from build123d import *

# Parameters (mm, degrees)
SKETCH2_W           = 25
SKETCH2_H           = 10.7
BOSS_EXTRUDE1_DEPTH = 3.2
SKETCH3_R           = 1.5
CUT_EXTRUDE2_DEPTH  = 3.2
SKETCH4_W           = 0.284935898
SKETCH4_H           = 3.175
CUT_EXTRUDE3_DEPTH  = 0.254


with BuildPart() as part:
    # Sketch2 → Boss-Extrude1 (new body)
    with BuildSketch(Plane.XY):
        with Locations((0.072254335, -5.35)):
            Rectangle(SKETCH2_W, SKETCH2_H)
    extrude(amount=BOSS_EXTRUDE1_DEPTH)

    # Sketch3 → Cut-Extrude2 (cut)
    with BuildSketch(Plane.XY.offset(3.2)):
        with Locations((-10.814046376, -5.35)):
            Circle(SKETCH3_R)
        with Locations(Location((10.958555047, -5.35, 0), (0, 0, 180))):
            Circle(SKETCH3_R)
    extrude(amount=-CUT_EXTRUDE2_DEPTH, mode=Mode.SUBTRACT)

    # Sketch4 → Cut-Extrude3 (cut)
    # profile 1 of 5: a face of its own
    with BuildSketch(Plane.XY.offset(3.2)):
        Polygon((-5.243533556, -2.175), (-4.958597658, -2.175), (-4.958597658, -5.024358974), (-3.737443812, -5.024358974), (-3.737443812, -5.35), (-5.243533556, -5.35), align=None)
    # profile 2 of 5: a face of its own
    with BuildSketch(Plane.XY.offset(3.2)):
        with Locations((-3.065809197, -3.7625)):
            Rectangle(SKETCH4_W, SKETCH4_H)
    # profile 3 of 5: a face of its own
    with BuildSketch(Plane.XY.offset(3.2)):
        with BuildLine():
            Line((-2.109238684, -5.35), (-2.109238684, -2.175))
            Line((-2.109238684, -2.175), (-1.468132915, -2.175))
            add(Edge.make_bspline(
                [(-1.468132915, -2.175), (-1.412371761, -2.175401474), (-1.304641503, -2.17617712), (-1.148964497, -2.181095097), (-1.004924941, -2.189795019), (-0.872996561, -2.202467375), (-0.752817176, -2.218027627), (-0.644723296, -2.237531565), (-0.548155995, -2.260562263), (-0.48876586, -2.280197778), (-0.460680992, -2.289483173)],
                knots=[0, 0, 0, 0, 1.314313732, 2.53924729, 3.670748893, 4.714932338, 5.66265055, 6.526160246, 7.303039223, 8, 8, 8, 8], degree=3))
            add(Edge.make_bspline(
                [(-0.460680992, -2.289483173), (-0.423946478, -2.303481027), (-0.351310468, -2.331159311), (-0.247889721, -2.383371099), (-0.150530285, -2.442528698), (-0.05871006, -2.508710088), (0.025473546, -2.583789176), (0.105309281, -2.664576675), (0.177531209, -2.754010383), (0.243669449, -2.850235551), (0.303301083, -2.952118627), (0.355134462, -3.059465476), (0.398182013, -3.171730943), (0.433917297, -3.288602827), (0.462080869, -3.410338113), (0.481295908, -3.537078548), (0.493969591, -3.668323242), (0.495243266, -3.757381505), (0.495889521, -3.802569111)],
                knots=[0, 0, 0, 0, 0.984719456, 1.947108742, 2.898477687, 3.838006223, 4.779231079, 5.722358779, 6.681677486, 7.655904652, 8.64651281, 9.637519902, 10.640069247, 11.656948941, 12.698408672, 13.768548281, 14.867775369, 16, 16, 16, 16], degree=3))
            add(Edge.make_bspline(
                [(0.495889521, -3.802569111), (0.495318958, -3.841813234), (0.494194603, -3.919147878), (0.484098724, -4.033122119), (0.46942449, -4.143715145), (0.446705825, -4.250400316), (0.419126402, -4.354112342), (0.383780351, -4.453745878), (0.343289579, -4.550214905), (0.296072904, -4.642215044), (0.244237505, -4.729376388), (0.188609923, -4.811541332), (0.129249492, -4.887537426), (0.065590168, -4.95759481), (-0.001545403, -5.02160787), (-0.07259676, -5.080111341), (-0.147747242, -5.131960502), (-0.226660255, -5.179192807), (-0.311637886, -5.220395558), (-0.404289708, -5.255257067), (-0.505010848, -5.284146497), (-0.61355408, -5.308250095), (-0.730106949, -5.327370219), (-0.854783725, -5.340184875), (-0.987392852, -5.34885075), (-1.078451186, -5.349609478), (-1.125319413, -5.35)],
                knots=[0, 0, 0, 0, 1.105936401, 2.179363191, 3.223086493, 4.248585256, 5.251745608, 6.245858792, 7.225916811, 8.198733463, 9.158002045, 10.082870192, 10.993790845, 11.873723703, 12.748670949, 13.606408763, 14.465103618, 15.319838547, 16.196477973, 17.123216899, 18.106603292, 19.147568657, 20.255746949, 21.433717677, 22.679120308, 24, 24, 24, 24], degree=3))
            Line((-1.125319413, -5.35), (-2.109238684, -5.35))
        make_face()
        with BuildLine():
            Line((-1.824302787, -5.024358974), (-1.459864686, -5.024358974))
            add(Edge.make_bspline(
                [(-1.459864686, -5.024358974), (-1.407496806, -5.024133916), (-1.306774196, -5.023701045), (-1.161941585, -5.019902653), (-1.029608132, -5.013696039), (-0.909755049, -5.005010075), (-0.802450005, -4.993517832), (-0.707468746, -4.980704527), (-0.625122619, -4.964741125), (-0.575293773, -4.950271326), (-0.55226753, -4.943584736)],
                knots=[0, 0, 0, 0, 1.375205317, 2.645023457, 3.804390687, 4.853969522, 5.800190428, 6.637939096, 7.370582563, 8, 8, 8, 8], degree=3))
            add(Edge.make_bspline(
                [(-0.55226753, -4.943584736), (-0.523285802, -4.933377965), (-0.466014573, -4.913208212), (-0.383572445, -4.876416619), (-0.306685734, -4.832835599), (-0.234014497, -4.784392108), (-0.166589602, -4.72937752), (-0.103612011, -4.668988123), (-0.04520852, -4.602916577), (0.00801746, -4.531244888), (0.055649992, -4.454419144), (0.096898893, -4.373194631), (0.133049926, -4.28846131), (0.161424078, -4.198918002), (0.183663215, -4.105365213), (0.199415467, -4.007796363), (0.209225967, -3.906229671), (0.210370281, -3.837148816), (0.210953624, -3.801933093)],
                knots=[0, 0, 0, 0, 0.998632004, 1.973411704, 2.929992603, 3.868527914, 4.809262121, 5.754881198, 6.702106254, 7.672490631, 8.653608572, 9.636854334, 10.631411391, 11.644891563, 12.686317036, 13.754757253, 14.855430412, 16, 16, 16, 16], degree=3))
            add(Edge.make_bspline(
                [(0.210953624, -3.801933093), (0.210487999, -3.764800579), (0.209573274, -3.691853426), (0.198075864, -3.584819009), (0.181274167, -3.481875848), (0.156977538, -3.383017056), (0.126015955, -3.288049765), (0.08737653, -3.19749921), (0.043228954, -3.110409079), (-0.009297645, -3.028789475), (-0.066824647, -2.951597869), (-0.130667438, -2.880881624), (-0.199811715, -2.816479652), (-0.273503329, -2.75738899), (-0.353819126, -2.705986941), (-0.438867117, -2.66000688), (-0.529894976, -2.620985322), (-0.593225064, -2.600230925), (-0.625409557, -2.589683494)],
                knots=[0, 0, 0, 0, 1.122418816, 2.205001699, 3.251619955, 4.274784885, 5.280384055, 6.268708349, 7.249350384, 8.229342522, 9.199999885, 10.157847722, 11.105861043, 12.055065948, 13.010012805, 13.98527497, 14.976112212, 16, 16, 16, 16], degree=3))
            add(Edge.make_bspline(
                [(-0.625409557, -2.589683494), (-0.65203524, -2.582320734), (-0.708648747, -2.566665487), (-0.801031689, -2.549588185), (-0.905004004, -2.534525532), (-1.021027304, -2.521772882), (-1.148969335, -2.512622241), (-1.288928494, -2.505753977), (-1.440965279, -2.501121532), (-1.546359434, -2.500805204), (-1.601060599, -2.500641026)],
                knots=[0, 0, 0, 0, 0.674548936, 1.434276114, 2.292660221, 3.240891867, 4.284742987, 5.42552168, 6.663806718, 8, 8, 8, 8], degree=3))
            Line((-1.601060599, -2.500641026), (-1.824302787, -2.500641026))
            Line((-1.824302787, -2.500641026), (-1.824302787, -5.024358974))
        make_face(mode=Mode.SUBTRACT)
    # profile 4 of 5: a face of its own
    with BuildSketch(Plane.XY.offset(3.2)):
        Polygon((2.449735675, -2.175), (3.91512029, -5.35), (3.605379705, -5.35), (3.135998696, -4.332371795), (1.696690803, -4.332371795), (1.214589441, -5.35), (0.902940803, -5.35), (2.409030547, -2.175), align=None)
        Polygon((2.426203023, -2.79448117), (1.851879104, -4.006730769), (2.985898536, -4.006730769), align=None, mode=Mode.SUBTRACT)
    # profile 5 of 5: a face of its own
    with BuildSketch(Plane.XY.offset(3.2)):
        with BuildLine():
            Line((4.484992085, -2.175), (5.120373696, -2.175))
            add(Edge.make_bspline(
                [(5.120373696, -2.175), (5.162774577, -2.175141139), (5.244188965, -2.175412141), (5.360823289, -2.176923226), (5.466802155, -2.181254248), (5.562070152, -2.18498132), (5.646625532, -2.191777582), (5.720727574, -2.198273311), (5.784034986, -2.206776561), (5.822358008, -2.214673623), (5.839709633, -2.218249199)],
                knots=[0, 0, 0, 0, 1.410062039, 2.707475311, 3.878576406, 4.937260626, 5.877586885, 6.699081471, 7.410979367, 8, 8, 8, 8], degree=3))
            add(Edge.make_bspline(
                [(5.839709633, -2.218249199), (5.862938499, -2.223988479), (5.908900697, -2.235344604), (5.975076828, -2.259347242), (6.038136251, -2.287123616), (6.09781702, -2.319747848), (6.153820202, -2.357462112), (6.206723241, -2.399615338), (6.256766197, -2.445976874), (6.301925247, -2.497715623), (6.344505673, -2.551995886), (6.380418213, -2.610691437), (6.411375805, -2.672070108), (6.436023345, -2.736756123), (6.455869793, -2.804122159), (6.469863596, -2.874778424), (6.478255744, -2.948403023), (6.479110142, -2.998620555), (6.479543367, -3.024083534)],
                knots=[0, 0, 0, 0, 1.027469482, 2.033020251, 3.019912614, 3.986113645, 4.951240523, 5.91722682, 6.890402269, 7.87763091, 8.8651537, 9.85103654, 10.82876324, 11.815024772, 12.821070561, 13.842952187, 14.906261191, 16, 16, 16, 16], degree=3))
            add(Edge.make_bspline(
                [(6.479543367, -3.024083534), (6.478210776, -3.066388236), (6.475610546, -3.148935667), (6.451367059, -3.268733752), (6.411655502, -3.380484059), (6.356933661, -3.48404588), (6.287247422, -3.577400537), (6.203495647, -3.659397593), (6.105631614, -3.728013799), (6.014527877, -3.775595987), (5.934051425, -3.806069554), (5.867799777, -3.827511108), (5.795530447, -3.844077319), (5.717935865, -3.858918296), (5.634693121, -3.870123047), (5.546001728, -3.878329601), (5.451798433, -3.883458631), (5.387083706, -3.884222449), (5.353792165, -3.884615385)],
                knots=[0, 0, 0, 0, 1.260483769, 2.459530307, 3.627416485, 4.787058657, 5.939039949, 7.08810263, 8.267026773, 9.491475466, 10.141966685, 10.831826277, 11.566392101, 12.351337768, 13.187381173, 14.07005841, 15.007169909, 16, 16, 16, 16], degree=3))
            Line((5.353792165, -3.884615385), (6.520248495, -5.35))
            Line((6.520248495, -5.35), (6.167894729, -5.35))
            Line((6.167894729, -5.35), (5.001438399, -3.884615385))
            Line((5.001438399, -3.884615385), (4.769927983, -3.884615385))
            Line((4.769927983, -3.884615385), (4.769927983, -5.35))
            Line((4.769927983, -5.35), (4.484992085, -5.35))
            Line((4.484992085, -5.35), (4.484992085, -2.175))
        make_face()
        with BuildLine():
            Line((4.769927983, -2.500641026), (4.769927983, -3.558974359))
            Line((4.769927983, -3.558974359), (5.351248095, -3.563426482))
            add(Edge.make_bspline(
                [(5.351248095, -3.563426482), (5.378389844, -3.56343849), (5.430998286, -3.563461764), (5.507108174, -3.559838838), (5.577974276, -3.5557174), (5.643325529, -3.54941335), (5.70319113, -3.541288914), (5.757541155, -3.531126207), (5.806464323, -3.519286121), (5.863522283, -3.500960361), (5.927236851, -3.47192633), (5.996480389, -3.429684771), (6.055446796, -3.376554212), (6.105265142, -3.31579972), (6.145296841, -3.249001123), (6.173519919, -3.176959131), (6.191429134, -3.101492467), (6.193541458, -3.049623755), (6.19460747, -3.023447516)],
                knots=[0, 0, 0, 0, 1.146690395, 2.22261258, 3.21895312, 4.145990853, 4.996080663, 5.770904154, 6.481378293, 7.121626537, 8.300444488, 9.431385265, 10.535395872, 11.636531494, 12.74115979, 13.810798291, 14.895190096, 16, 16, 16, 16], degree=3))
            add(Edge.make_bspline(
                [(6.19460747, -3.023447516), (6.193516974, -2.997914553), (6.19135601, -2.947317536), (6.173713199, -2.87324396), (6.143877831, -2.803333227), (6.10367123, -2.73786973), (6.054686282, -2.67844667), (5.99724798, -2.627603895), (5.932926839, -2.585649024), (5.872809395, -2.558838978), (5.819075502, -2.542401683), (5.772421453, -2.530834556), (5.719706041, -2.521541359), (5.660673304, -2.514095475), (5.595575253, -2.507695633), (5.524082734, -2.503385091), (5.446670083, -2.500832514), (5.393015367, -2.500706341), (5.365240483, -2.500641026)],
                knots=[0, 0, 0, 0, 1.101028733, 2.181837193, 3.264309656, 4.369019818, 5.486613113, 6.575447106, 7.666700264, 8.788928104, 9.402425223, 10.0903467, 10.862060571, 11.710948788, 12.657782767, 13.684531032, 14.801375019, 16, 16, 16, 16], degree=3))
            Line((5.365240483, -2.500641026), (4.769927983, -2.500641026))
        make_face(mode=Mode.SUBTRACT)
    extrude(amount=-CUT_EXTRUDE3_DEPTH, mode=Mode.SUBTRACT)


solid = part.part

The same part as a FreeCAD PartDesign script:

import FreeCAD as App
import Part
import Sketcher

V = App.Vector
Q = App.Units.Quantity

doc = App.newDocument("Part")
params = doc.addObject("Spreadsheet::Sheet", "Params")
for row, (alias, value) in enumerate([
    ("sketch1_width", "25 mm"),
    ("sketch1_height", "10.7 mm"),
    ("pad1_length", "3.2 mm"),
    ("sketch2_diameter", "3 mm"),
    ("pocket1_length", "3.2 mm"),
    ("pocket2_length", "0.254 mm"),
], start=1):
    params.set(f"A{row}", alias)
    params.set(f"B{row}", "=" + value)
    params.setAlias(f"B{row}", alias)

body = doc.addObject("PartDesign::Body", "Body")

sketch1 = doc.addObject("Sketcher::SketchObject", "Sketch")
body.addObject(sketch1)
sketch1.AttachmentSupport = (doc.XY_Plane, [""])
sketch1.MapMode = "FlatFace"
sketch1.addGeometry(Part.LineSegment(V(-12.427746, 0, 0), V(-12.427746, -10.7, 0)), False)
sketch1.addGeometry(Part.LineSegment(V(-12.427746, -10.7, 0), V(12.572254, -10.7, 0)), False)
sketch1.addGeometry(Part.LineSegment(V(12.572254, -10.7, 0), V(12.572254, 0, 0)), False)
sketch1.addGeometry(Part.LineSegment(V(12.572254, 0, 0), V(-12.427746, 0, 0)), False)
sketch1.addConstraint(Sketcher.Constraint("Coincident", 0, 2, 1, 1))
sketch1.addConstraint(Sketcher.Constraint("Coincident", 1, 2, 2, 1))
sketch1.addConstraint(Sketcher.Constraint("Coincident", 2, 2, 3, 1))
sketch1.addConstraint(Sketcher.Constraint("Coincident", 3, 2, 0, 1))
sketch1.addConstraint(Sketcher.Constraint("Vertical", 0))
sketch1.addConstraint(Sketcher.Constraint("Horizontal", 1))
sketch1.addConstraint(Sketcher.Constraint("Vertical", 2))
sketch1.addConstraint(Sketcher.Constraint("Horizontal", 3))
sketch1.addConstraint(Sketcher.Constraint("PointOnObject", 2, 2, -1))
sketch1.addConstraint(Sketcher.Constraint("DistanceX", 1, 1, 1, 2, Q("25 mm")))
sketch1.addConstraint(Sketcher.Constraint("DistanceY", 0, 2, 0, 1, Q("10.7 mm")))
sketch1.addConstraint(Sketcher.Constraint("DistanceX", 0, 2, -1, 1, Q("12.427746 mm")))
sketch1.setExpression("Constraints[9]", "Params.sketch1_width")
sketch1.setExpression("Constraints[10]", "Params.sketch1_height")
pad1 = doc.addObject("PartDesign::Pad", "Pad")
body.addObject(pad1)
pad1.Profile = sketch1
pad1.setExpression("Length", "Params.pad1_length")

sketch2 = doc.addObject("Sketcher::SketchObject", "Sketch001")
body.addObject(sketch2)
sketch2.AttachmentSupport = (doc.XY_Plane, [""])
sketch2.MapMode = "FlatFace"
sketch2.AttachmentOffset = App.Placement(V(0, 0, 3.2), App.Rotation())
sketch2.addGeometry(Part.Circle(V(-10.814046, -5.35, 0), V(0, 0, 1), 1.5), False)
sketch2.addGeometry(Part.Circle(V(10.958555, -5.35, 0), V(0, 0, 1), 1.5), False)
sketch2.addConstraint(Sketcher.Constraint("Equal", 0, 1))
sketch2.addConstraint(Sketcher.Constraint("Horizontal", 0, 3, 1, 3))
sketch2.addConstraint(Sketcher.Constraint("Diameter", 0, Q("3 mm")))
sketch2.addConstraint(Sketcher.Constraint("DistanceY", 0, 3, -1, 1, Q("5.35 mm")))
sketch2.addConstraint(Sketcher.Constraint("DistanceX", 0, 3, 1, 3, Q("21.772601 mm")))
sketch2.addConstraint(Sketcher.Constraint("DistanceX", 0, 3, -1, 1, Q("10.814046 mm")))
sketch2.setExpression("Constraints[2]", "Params.sketch2_diameter")
pocket1 = doc.addObject("PartDesign::Pocket", "Pocket")
body.addObject(pocket1)
pocket1.Profile = sketch2
pocket1.setExpression("Length", "Params.pocket1_length")

sketch3 = doc.addObject("Sketcher::SketchObject", "Sketch002")
body.addObject(sketch3)
sketch3.AttachmentSupport = (doc.XY_Plane, [""])
sketch3.MapMode = "FlatFace"
sketch3.AttachmentOffset = App.Placement(V(0, 0, 3.2), App.Rotation())
sketch3.addGeometry(Part.LineSegment(V(-4.958598, -2.175, 0), V(-5.243534, -2.175, 0)), False)
sketch3.addGeometry(Part.LineSegment(V(-5.243534, -2.175, 0), V(-5.243534, -5.35, 0)), False)
sketch3.addGeometry(Part.LineSegment(V(-5.243534, -5.35, 0), V(-3.737444, -5.35, 0)), False)
sketch3.addGeometry(Part.LineSegment(V(-3.737444, -5.35, 0), V(-3.737444, -5.024359, 0)), False)
sketch3.addGeometry(Part.LineSegment(V(-3.737444, -5.024359, 0), V(-4.958598, -5.024359, 0)), False)
sketch3.addGeometry(Part.LineSegment(V(-4.958598, -5.024359, 0), V(-4.958598, -2.175, 0)), False)
sketch3.addGeometry(Part.LineSegment(V(-3.208277, -2.175, 0), V(-3.208277, -5.35, 0)), False)
sketch3.addGeometry(Part.LineSegment(V(-3.208277, -5.35, 0), V(-2.923341, -5.35, 0)), False)
sketch3.addGeometry(Part.LineSegment(V(-2.923341, -5.35, 0), V(-2.923341, -2.175, 0)), False)
sketch3.addGeometry(Part.LineSegment(V(-2.923341, -2.175, 0), V(-3.208277, -2.175, 0)), False)
sketch3.addGeometry(Part.LineSegment(V(-2.109239, -2.175, 0), V(-2.109239, -5.35, 0)), False)
sketch3.addGeometry(Part.LineSegment(V(-2.109239, -5.35, 0), V(-1.125319, -5.35, 0)), False)
sketch3.addGeometry(Part.BSplineCurve([V(0.49589, -3.802569, 0), V(0.495319, -3.841813, 0), V(0.494195, -3.919148, 0), V(0.484099, -4.033122, 0), V(0.469424, -4.143715, 0), V(0.446706, -4.2504, 0), V(0.419126, -4.354112, 0), V(0.38378, -4.453746, 0), V(0.34329, -4.550215, 0), V(0.296073, -4.642215, 0), V(0.244238, -4.729376, 0), V(0.18861, -4.811541, 0), V(0.129249, -4.887537, 0), V(0.06559, -4.957595, 0), V(-0.001545, -5.021608, 0), V(-0.072597, -5.080111, 0), V(-0.147747, -5.131961, 0), V(-0.22666, -5.179193, 0), V(-0.311638, -5.220396, 0), V(-0.40429, -5.255257, 0), V(-0.505011, -5.284146, 0), V(-0.613554, -5.30825, 0), V(-0.730107, -5.32737, 0), V(-0.854784, -5.340185, 0), V(-0.987393, -5.348851, 0), V(-1.078451, -5.349609, 0), V(-1.125319, -5.35, 0)], [4, 1, 1, 1, 1, 1, 1, 1, 1, 1, 1, 1, 1, 1, 1, 1, 1, 1, 1, 1, 1, 1, 1, 1, 4], [0, 1.105936401, 2.179363191, 3.223086493, 4.248585256, 5.251745608, 6.245858792, 7.225916811, 8.198733463, 9.158002045, 10.082870192, 10.993790845, 11.873723703, 12.748670949, 13.606408763, 14.465103618, 15.319838547, 16.196477973, 17.123216899, 18.106603292, 19.147568657, 20.255746949, 21.433717677, 22.679120308, 24], False, 3, [1, 1, 1, 1, 1, 1, 1, 1, 1, 1, 1, 1, 1, 1, 1, 1, 1, 1, 1, 1, 1, 1, 1, 1, 1, 1, 1], False), False)
sketch3.addGeometry(Part.BSplineCurve([V(-0.460681, -2.289483, 0), V(-0.423946, -2.303481, 0), V(-0.35131, -2.331159, 0), V(-0.24789, -2.383371, 0), V(-0.15053, -2.442529, 0), V(-0.05871, -2.50871, 0), V(0.025474, -2.583789, 0), V(0.105309, -2.664577, 0), V(0.177531, -2.75401, 0), V(0.243669, -2.850236, 0), V(0.303301, -2.952119, 0), V(0.355134, -3.059465, 0), V(0.398182, -3.171731, 0), V(0.433917, -3.288603, 0), V(0.462081, -3.410338, 0), V(0.481296, -3.537079, 0), V(0.49397, -3.668323, 0), V(0.495243, -3.757382, 0), V(0.49589, -3.802569, 0)], [4, 1, 1, 1, 1, 1, 1, 1, 1, 1, 1, 1, 1, 1, 1, 1, 4], [0, 0.984719456, 1.947108742, 2.898477687, 3.838006223, 4.779231079, 5.722358779, 6.681677486, 7.655904652, 8.64651281, 9.637519902, 10.640069247, 11.656948941, 12.698408672, 13.768548281, 14.867775369, 16], False, 3, [1, 1, 1, 1, 1, 1, 1, 1, 1, 1, 1, 1, 1, 1, 1, 1, 1, 1, 1], False), False)
sketch3.addGeometry(Part.BSplineCurve([V(-1.468133, -2.175, 0), V(-1.412372, -2.175401, 0), V(-1.304642, -2.176177, 0), V(-1.148964, -2.181095, 0), V(-1.004925, -2.189795, 0), V(-0.872997, -2.202467, 0), V(-0.752817, -2.218028, 0), V(-0.644723, -2.237532, 0), V(-0.548156, -2.260562, 0), V(-0.488766, -2.280198, 0), V(-0.460681, -2.289483, 0)], [4, 1, 1, 1, 1, 1, 1, 1, 4], [0, 1.314313732, 2.53924729, 3.670748893, 4.714932338, 5.66265055, 6.526160246, 7.303039223, 8], False, 3, [1, 1, 1, 1, 1, 1, 1, 1, 1, 1, 1], False), False)
sketch3.addGeometry(Part.LineSegment(V(-1.468133, -2.175, 0), V(-2.109239, -2.175, 0)), False)
sketch3.addGeometry(Part.LineSegment(V(-1.824303, -5.024359, 0), V(-1.824303, -2.500641, 0)), False)
sketch3.addGeometry(Part.LineSegment(V(-1.824303, -2.500641, 0), V(-1.601061, -2.500641, 0)), False)
sketch3.addGeometry(Part.BSplineCurve([V(-0.62541, -2.589683, 0), V(-0.652035, -2.582321, 0), V(-0.708649, -2.566665, 0), V(-0.801032, -2.549588, 0), V(-0.905004, -2.534526, 0), V(-1.021027, -2.521773, 0), V(-1.148969, -2.512622, 0), V(-1.288928, -2.505754, 0), V(-1.440965, -2.501122, 0), V(-1.546359, -2.500805, 0), V(-1.601061, -2.500641, 0)], [4, 1, 1, 1, 1, 1, 1, 1, 4], [0, 0.674548936, 1.434276114, 2.292660221, 3.240891867, 4.284742987, 5.42552168, 6.663806718, 8], False, 3, [1, 1, 1, 1, 1, 1, 1, 1, 1, 1, 1], False), False)
sketch3.addGeometry(Part.BSplineCurve([V(0.210954, -3.801933, 0), V(0.210488, -3.764801, 0), V(0.209573, -3.691853, 0), V(0.198076, -3.584819, 0), V(0.181274, -3.481876, 0), V(0.156978, -3.383017, 0), V(0.126016, -3.28805, 0), V(0.087377, -3.197499, 0), V(0.043229, -3.110409, 0), V(-0.009298, -3.028789, 0), V(-0.066825, -2.951598, 0), V(-0.130667, -2.880882, 0), V(-0.199812, -2.81648, 0), V(-0.273503, -2.757389, 0), V(-0.353819, -2.705987, 0), V(-0.438867, -2.660007, 0), V(-0.529895, -2.620985, 0), V(-0.593225, -2.600231, 0), V(-0.62541, -2.589683, 0)], [4, 1, 1, 1, 1, 1, 1, 1, 1, 1, 1, 1, 1, 1, 1, 1, 4], [0, 1.122418816, 2.205001699, 3.251619955, 4.274784885, 5.280384055, 6.268708349, 7.249350384, 8.229342522, 9.199999885, 10.157847722, 11.105861043, 12.055065948, 13.010012805, 13.98527497, 14.976112212, 16], False, 3, [1, 1, 1, 1, 1, 1, 1, 1, 1, 1, 1, 1, 1, 1, 1, 1, 1, 1, 1], False), False)
sketch3.addGeometry(Part.BSplineCurve([V(-0.552268, -4.943585, 0), V(-0.523286, -4.933378, 0), V(-0.466015, -4.913208, 0), V(-0.383572, -4.876417, 0), V(-0.306686, -4.832836, 0), V(-0.234014, -4.784392, 0), V(-0.16659, -4.729378, 0), V(-0.103612, -4.668988, 0), V(-0.045209, -4.602917, 0), V(0.008017, -4.531245, 0), V(0.05565, -4.454419, 0), V(0.096899, -4.373195, 0), V(0.13305, -4.288461, 0), V(0.161424, -4.198918, 0), V(0.183663, -4.105365, 0), V(0.199415, -4.007796, 0), V(0.209226, -3.90623, 0), V(0.21037, -3.837149, 0), V(0.210954, -3.801933, 0)], [4, 1, 1, 1, 1, 1, 1, 1, 1, 1, 1, 1, 1, 1, 1, 1, 4], [0, 0.998632004, 1.973411704, 2.929992603, 3.868527914, 4.809262121, 5.754881198, 6.702106254, 7.672490631, 8.653608572, 9.636854334, 10.631411391, 11.644891563, 12.686317036, 13.754757253, 14.855430412, 16], False, 3, [1, 1, 1, 1, 1, 1, 1, 1, 1, 1, 1, 1, 1, 1, 1, 1, 1, 1, 1], False), False)
sketch3.addGeometry(Part.BSplineCurve([V(-1.459865, -5.024359, 0), V(-1.407497, -5.024134, 0), V(-1.306774, -5.023701, 0), V(-1.161942, -5.019903, 0), V(-1.029608, -5.013696, 0), V(-0.909755, -5.00501, 0), V(-0.80245, -4.993518, 0), V(-0.707469, -4.980705, 0), V(-0.625123, -4.964741, 0), V(-0.575294, -4.950271, 0), V(-0.552268, -4.943585, 0)], [4, 1, 1, 1, 1, 1, 1, 1, 4], [0, 1.375205317, 2.645023457, 3.804390687, 4.853969522, 5.800190428, 6.637939096, 7.370582563, 8], False, 3, [1, 1, 1, 1, 1, 1, 1, 1, 1, 1, 1], False), False)
sketch3.addGeometry(Part.LineSegment(V(-1.459865, -5.024359, 0), V(-1.824303, -5.024359, 0)), False)
sketch3.addGeometry(Part.LineSegment(V(3.91512, -5.35, 0), V(2.449736, -2.175, 0)), False)
sketch3.addGeometry(Part.LineSegment(V(2.449736, -2.175, 0), V(2.409031, -2.175, 0)), False)
sketch3.addGeometry(Part.LineSegment(V(2.409031, -2.175, 0), V(0.902941, -5.35, 0)), False)
sketch3.addGeometry(Part.LineSegment(V(0.902941, -5.35, 0), V(1.214589, -5.35, 0)), False)
sketch3.addGeometry(Part.LineSegment(V(1.214589, -5.35, 0), V(1.696691, -4.332372, 0)), False)
sketch3.addGeometry(Part.LineSegment(V(1.696691, -4.332372, 0), V(3.135999, -4.332372, 0)), False)
sketch3.addGeometry(Part.LineSegment(V(3.135999, -4.332372, 0), V(3.60538, -5.35, 0)), False)
sketch3.addGeometry(Part.LineSegment(V(3.60538, -5.35, 0), V(3.91512, -5.35, 0)), False)
sketch3.addGeometry(Part.LineSegment(V(2.426203, -2.794481, 0), V(2.985899, -4.006731, 0)), False)
sketch3.addGeometry(Part.LineSegment(V(2.985899, -4.006731, 0), V(1.851879, -4.006731, 0)), False)
sketch3.addGeometry(Part.LineSegment(V(1.851879, -4.006731, 0), V(2.426203, -2.794481, 0)), False)
sketch3.addGeometry(Part.LineSegment(V(5.120374, -2.175, 0), V(4.484992, -2.175, 0)), False)
sketch3.addGeometry(Part.LineSegment(V(4.484992, -2.175, 0), V(4.484992, -5.35, 0)), False)
sketch3.addGeometry(Part.LineSegment(V(4.484992, -5.35, 0), V(4.769928, -5.35, 0)), False)
sketch3.addGeometry(Part.LineSegment(V(4.769928, -5.35, 0), V(4.769928, -3.884615, 0)), False)
sketch3.addGeometry(Part.LineSegment(V(4.769928, -3.884615, 0), V(5.001438, -3.884615, 0)), False)
sketch3.addGeometry(Part.LineSegment(V(5.001438, -3.884615, 0), V(6.167895, -5.35, 0)), False)
sketch3.addGeometry(Part.LineSegment(V(6.167895, -5.35, 0), V(6.520248, -5.35, 0)), False)
sketch3.addGeometry(Part.LineSegment(V(6.520248, -5.35, 0), V(5.353792, -3.884615, 0)), False)
sketch3.addGeometry(Part.BSplineCurve([V(6.479543, -3.024084, 0), V(6.478211, -3.066388, 0), V(6.475611, -3.148936, 0), V(6.451367, -3.268734, 0), V(6.411656, -3.380484, 0), V(6.356934, -3.484046, 0), V(6.287247, -3.577401, 0), V(6.203496, -3.659398, 0), V(6.105632, -3.728014, 0), V(6.014528, -3.775596, 0), V(5.934051, -3.80607, 0), V(5.8678, -3.827511, 0), V(5.79553, -3.844077, 0), V(5.717936, -3.858918, 0), V(5.634693, -3.870123, 0), V(5.546002, -3.87833, 0), V(5.451798, -3.883459, 0), V(5.387084, -3.884222, 0), V(5.353792, -3.884615, 0)], [4, 1, 1, 1, 1, 1, 1, 1, 1, 1, 1, 1, 1, 1, 1, 1, 4], [0, 1.260483769, 2.459530307, 3.627416485, 4.787058657, 5.939039949, 7.08810263, 8.267026773, 9.491475466, 10.141966685, 10.831826277, 11.566392101, 12.351337768, 13.187381173, 14.07005841, 15.007169909, 16], False, 3, [1, 1, 1, 1, 1, 1, 1, 1, 1, 1, 1, 1, 1, 1, 1, 1, 1, 1, 1], False), False)
sketch3.addGeometry(Part.BSplineCurve([V(5.83971, -2.218249, 0), V(5.862938, -2.223988, 0), V(5.908901, -2.235345, 0), V(5.975077, -2.259347, 0), V(6.038136, -2.287124, 0), V(6.097817, -2.319748, 0), V(6.15382, -2.357462, 0), V(6.206723, -2.399615, 0), V(6.256766, -2.445977, 0), V(6.301925, -2.497716, 0), V(6.344506, -2.551996, 0), V(6.380418, -2.610691, 0), V(6.411376, -2.67207, 0), V(6.436023, -2.736756, 0), V(6.45587, -2.804122, 0), V(6.469864, -2.874778, 0), V(6.478256, -2.948403, 0), V(6.47911, -2.998621, 0), V(6.479543, -3.024084, 0)], [4, 1, 1, 1, 1, 1, 1, 1, 1, 1, 1, 1, 1, 1, 1, 1, 4], [0, 1.027469482, 2.033020251, 3.019912614, 3.986113645, 4.951240523, 5.91722682, 6.890402269, 7.87763091, 8.8651537, 9.85103654, 10.82876324, 11.815024772, 12.821070561, 13.842952187, 14.906261191, 16], False, 3, [1, 1, 1, 1, 1, 1, 1, 1, 1, 1, 1, 1, 1, 1, 1, 1, 1, 1, 1], False), False)
sketch3.addGeometry(Part.BSplineCurve([V(5.120374, -2.175, 0), V(5.162775, -2.175141, 0), V(5.244189, -2.175412, 0), V(5.360823, -2.176923, 0), V(5.466802, -2.181254, 0), V(5.56207, -2.184981, 0), V(5.646626, -2.191778, 0), V(5.720728, -2.198273, 0), V(5.784035, -2.206777, 0), V(5.822358, -2.214674, 0), V(5.83971, -2.218249, 0)], [4, 1, 1, 1, 1, 1, 1, 1, 4], [0, 1.410062039, 2.707475311, 3.878576406, 4.937260626, 5.877586885, 6.699081471, 7.410979367, 8], False, 3, [1, 1, 1, 1, 1, 1, 1, 1, 1, 1, 1], False), False)
sketch3.addGeometry(Part.LineSegment(V(4.769928, -2.500641, 0), V(5.36524, -2.500641, 0)), False)
sketch3.addGeometry(Part.BSplineCurve([V(6.194607, -3.023448, 0), V(6.193517, -2.997915, 0), V(6.191356, -2.947318, 0), V(6.173713, -2.873244, 0), V(6.143878, -2.803333, 0), V(6.103671, -2.73787, 0), V(6.054686, -2.678447, 0), V(5.997248, -2.627604, 0), V(5.932927, -2.585649, 0), V(5.872809, -2.558839, 0), V(5.819076, -2.542402, 0), V(5.772421, -2.530835, 0), V(5.719706, -2.521541, 0), V(5.660673, -2.514095, 0), V(5.595575, -2.507696, 0), V(5.524083, -2.503385, 0), V(5.44667, -2.500833, 0), V(5.393015, -2.500706, 0), V(5.36524, -2.500641, 0)], [4, 1, 1, 1, 1, 1, 1, 1, 1, 1, 1, 1, 1, 1, 1, 1, 4], [0, 1.101028733, 2.181837193, 3.264309656, 4.369019818, 5.486613113, 6.575447106, 7.666700264, 8.788928104, 9.402425223, 10.0903467, 10.862060571, 11.710948788, 12.657782767, 13.684531032, 14.801375019, 16], False, 3, [1, 1, 1, 1, 1, 1, 1, 1, 1, 1, 1, 1, 1, 1, 1, 1, 1, 1, 1], False), False)
sketch3.addGeometry(Part.BSplineCurve([V(5.351248, -3.563426, 0), V(5.37839, -3.563438, 0), V(5.430998, -3.563462, 0), V(5.507108, -3.559839, 0), V(5.577974, -3.555717, 0), V(5.643326, -3.549413, 0), V(5.703191, -3.541289, 0), V(5.757541, -3.531126, 0), V(5.806464, -3.519286, 0), V(5.863522, -3.50096, 0), V(5.927237, -3.471926, 0), V(5.99648, -3.429685, 0), V(6.055447, -3.376554, 0), V(6.105265, -3.3158, 0), V(6.145297, -3.249001, 0), V(6.17352, -3.176959, 0), V(6.191429, -3.101492, 0), V(6.193541, -3.049624, 0), V(6.194607, -3.023448, 0)], [4, 1, 1, 1, 1, 1, 1, 1, 1, 1, 1, 1, 1, 1, 1, 1, 4], [0, 1.146690395, 2.22261258, 3.21895312, 4.145990853, 4.996080663, 5.770904154, 6.481378293, 7.121626537, 8.300444488, 9.431385265, 10.535395872, 11.636531494, 12.74115979, 13.810798291, 14.895190096, 16], False, 3, [1, 1, 1, 1, 1, 1, 1, 1, 1, 1, 1, 1, 1, 1, 1, 1, 1, 1, 1], False), False)
sketch3.addGeometry(Part.LineSegment(V(5.351248, -3.563426, 0), V(4.769928, -3.558974, 0)), False)
sketch3.addGeometry(Part.LineSegment(V(4.769928, -3.558974, 0), V(4.769928, -2.500641, 0)), False)
sketch3.addConstraint(Sketcher.Constraint("Block", 12))
sketch3.addConstraint(Sketcher.Constraint("Block", 13))
sketch3.addConstraint(Sketcher.Constraint("Block", 14))
sketch3.addConstraint(Sketcher.Constraint("Block", 18))
sketch3.addConstraint(Sketcher.Constraint("Block", 19))
sketch3.addConstraint(Sketcher.Constraint("Block", 20))
sketch3.addConstraint(Sketcher.Constraint("Block", 21))
sketch3.addConstraint(Sketcher.Constraint("Block", 42))
sketch3.addConstraint(Sketcher.Constraint("Block", 43))
sketch3.addConstraint(Sketcher.Constraint("Block", 44))
sketch3.addConstraint(Sketcher.Constraint("Block", 46))
sketch3.addConstraint(Sketcher.Constraint("Block", 47))
sketch3.addConstraint(Sketcher.Constraint("Coincident", 0, 2, 1, 1))
sketch3.addConstraint(Sketcher.Constraint("Coincident", 1, 2, 2, 1))
sketch3.addConstraint(Sketcher.Constraint("Coincident", 2, 2, 3, 1))
sketch3.addConstraint(Sketcher.Constraint("Coincident", 3, 2, 4, 1))
sketch3.addConstraint(Sketcher.Constraint("Coincident", 4, 2, 5, 1))
sketch3.addConstraint(Sketcher.Constraint("Coincident", 5, 2, 0, 1))
sketch3.addConstraint(Sketcher.Constraint("Coincident", 6, 2, 7, 1))
sketch3.addConstraint(Sketcher.Constraint("Coincident", 7, 2, 8, 1))
sketch3.addConstraint(Sketcher.Constraint("Coincident", 8, 2, 9, 1))
sketch3.addConstraint(Sketcher.Constraint("Coincident", 9, 2, 6, 1))
sketch3.addConstraint(Sketcher.Constraint("Coincident", 10, 2, 11, 1))
sketch3.addConstraint(Sketcher.Constraint("Coincident", 11, 2, 12, 2))
sketch3.addConstraint(Sketcher.Constraint("Coincident", 14, 1, 15, 1))
sketch3.addConstraint(Sketcher.Constraint("Coincident", 15, 2, 10, 1))
sketch3.addConstraint(Sketcher.Constraint("Coincident", 16, 2, 17, 1))
sketch3.addConstraint(Sketcher.Constraint("Coincident", 17, 2, 18, 2))
sketch3.addConstraint(Sketcher.Constraint("Coincident", 21, 1, 22, 1))
sketch3.addConstraint(Sketcher.Constraint("Coincident", 22, 2, 16, 1))
sketch3.addConstraint(Sketcher.Constraint("Coincident", 23, 2, 24, 1))
sketch3.addConstraint(Sketcher.Constraint("Coincident", 24, 2, 25, 1))
sketch3.addConstraint(Sketcher.Constraint("Coincident", 25, 2, 26, 1))
sketch3.addConstraint(Sketcher.Constraint("Coincident", 26, 2, 27, 1))
sketch3.addConstraint(Sketcher.Constraint("Coincident", 27, 2, 28, 1))
sketch3.addConstraint(Sketcher.Constraint("Coincident", 28, 2, 29, 1))
sketch3.addConstraint(Sketcher.Constraint("Coincident", 29, 2, 30, 1))
sketch3.addConstraint(Sketcher.Constraint("Coincident", 30, 2, 23, 1))
sketch3.addConstraint(Sketcher.Constraint("Coincident", 31, 2, 32, 1))
sketch3.addConstraint(Sketcher.Constraint("Coincident", 32, 2, 33, 1))
sketch3.addConstraint(Sketcher.Constraint("Coincident", 33, 2, 31, 1))
sketch3.addConstraint(Sketcher.Constraint("Coincident", 34, 2, 35, 1))
sketch3.addConstraint(Sketcher.Constraint("Coincident", 35, 2, 36, 1))
sketch3.addConstraint(Sketcher.Constraint("Coincident", 36, 2, 37, 1))
sketch3.addConstraint(Sketcher.Constraint("Coincident", 37, 2, 38, 1))
sketch3.addConstraint(Sketcher.Constraint("Coincident", 38, 2, 39, 1))
sketch3.addConstraint(Sketcher.Constraint("Coincident", 39, 2, 40, 1))
sketch3.addConstraint(Sketcher.Constraint("Coincident", 40, 2, 41, 1))
sketch3.addConstraint(Sketcher.Constraint("Coincident", 41, 2, 42, 2))
sketch3.addConstraint(Sketcher.Constraint("Coincident", 44, 1, 34, 1))
sketch3.addConstraint(Sketcher.Constraint("Coincident", 45, 2, 46, 2))
sketch3.addConstraint(Sketcher.Constraint("Coincident", 47, 1, 48, 1))
sketch3.addConstraint(Sketcher.Constraint("Coincident", 48, 2, 49, 1))
sketch3.addConstraint(Sketcher.Constraint("Coincident", 49, 2, 45, 1))
sketch3.addConstraint(Sketcher.Constraint("Horizontal", 0))
sketch3.addConstraint(Sketcher.Constraint("Vertical", 1))
sketch3.addConstraint(Sketcher.Constraint("Horizontal", 2))
sketch3.addConstraint(Sketcher.Constraint("Vertical", 3))
sketch3.addConstraint(Sketcher.Constraint("Horizontal", 4))
sketch3.addConstraint(Sketcher.Constraint("Vertical", 5))
sketch3.addConstraint(Sketcher.Constraint("Vertical", 6))
sketch3.addConstraint(Sketcher.Constraint("Horizontal", 7))
sketch3.addConstraint(Sketcher.Constraint("Vertical", 8))
sketch3.addConstraint(Sketcher.Constraint("Horizontal", 9))
sketch3.addConstraint(Sketcher.Constraint("Vertical", 10))
sketch3.addConstraint(Sketcher.Constraint("Horizontal", 11))
sketch3.addConstraint(Sketcher.Constraint("Horizontal", 15))
sketch3.addConstraint(Sketcher.Constraint("Vertical", 16))
sketch3.addConstraint(Sketcher.Constraint("Horizontal", 17))
sketch3.addConstraint(Sketcher.Constraint("Horizontal", 22))
sketch3.addConstraint(Sketcher.Constraint("Horizontal", 24))
sketch3.addConstraint(Sketcher.Constraint("Horizontal", 26))
sketch3.addConstraint(Sketcher.Constraint("Horizontal", 28))
sketch3.addConstraint(Sketcher.Constraint("Horizontal", 30))
sketch3.addConstraint(Sketcher.Constraint("Horizontal", 32))
sketch3.addConstraint(Sketcher.Constraint("Horizontal", 34))
sketch3.addConstraint(Sketcher.Constraint("Vertical", 35))
sketch3.addConstraint(Sketcher.Constraint("Horizontal", 36))
sketch3.addConstraint(Sketcher.Constraint("Vertical", 37))
sketch3.addConstraint(Sketcher.Constraint("Horizontal", 38))
sketch3.addConstraint(Sketcher.Constraint("Horizontal", 40))
sketch3.addConstraint(Sketcher.Constraint("Horizontal", 45))
sketch3.addConstraint(Sketcher.Constraint("Vertical", 49))
sketch3.addConstraint(Sketcher.Constraint("Parallel", 39, 41))
sketch3.addConstraint(Sketcher.Constraint("Horizontal", 2, 2, 6, 2))
sketch3.addConstraint(Sketcher.Constraint("Horizontal", 5, 2, 8, 2))
sketch3.addConstraint(Sketcher.Constraint("Horizontal", 7, 2, 10, 2))
sketch3.addConstraint(Sketcher.Constraint("Horizontal", 9, 2, 15, 2))
sketch3.addConstraint(Sketcher.Constraint("Horizontal", 4, 2, 22, 2))
sketch3.addConstraint(Sketcher.Constraint("Horizontal", 15, 2, 23, 2))
sketch3.addConstraint(Sketcher.Constraint("Horizontal", 11, 2, 25, 2))
sketch3.addConstraint(Sketcher.Constraint("Horizontal", 26, 2, 29, 2))
sketch3.addConstraint(Sketcher.Constraint("Horizontal", 30, 2, 35, 2))
sketch3.addConstraint(Sketcher.Constraint("Horizontal", 36, 2, 39, 2))
sketch3.addConstraint(Sketcher.Constraint("Horizontal", 38, 2, 41, 2))
sketch3.addConstraint(Sketcher.Constraint("Vertical", 37, 2, 48, 2))
sketch3.addConstraint(Sketcher.Constraint("Equal", 0, 7))
sketch3.addConstraint(Sketcher.Constraint("Equal", 9, 36))
sketch3.addConstraint(Sketcher.Constraint("DistanceX", -1, 1, 28, 2, Q("3.135999 mm")))
sketch3.addConstraint(Sketcher.Constraint("DistanceX", 2, 1, 2, 2, Q("1.50609 mm")))
sketch3.addConstraint(Sketcher.Constraint("DistanceX", 11, 1, 11, 2, Q("0.983919 mm")))
sketch3.addConstraint(Sketcher.Constraint("DistanceX", 22, 2, 22, 1, Q("0.364438 mm")))
sketch3.addConstraint(Sketcher.Constraint("DistanceX", 26, 1, 26, 2, Q("0.311649 mm")))
sketch3.addConstraint(Sketcher.Constraint("DistanceX", 30, 1, 30, 2, Q("0.309741 mm")))
sketch3.addConstraint(Sketcher.Constraint("DistanceX", 32, 2, 32, 1, Q("1.134019 mm")))
sketch3.addConstraint(Sketcher.Constraint("DistanceX", 34, 2, 34, 1, Q("0.635382 mm")))
sketch3.addConstraint(Sketcher.Constraint("DistanceX", 38, 1, 38, 2, Q("0.23151 mm")))
sketch3.addConstraint(Sketcher.Constraint("DistanceX", -1, 1, 31, 2, Q("2.985899 mm")))
sketch3.addConstraint(Sketcher.Constraint("DistanceX", 26, 2, 27, 2, Q("0.482101 mm")))
sketch3.addConstraint(Sketcher.Constraint("Distance", 27, Q("1.12605 mm")))
sketch3.addConstraint(Sketcher.Constraint("Distance", 31, Q("1.335218 mm")))
sketch3.addConstraint(Sketcher.Constraint("Distance", 39, Q("1.872958 mm")))
sketch3.addConstraint(Sketcher.Constraint("DistanceX", 0, 2, 0, 1, Q("0.284936 mm")))
sketch3.addConstraint(Sketcher.Constraint("DistanceX", 24, 2, 24, 1, Q("0.040705 mm")))
sketch3.addConstraint(Sketcher.Constraint("DistanceX", 28, 1, 28, 2, Q("1.439308 mm")))
sketch3.addConstraint(Sketcher.Constraint("DistanceY", 49, 1, 49, 2, Q("1.058333 mm")))
sketch3.addConstraint(Sketcher.Constraint("DistanceX", 7, 2, -1, 1, Q("2.923341 mm")))
sketch3.addConstraint(Sketcher.Constraint("DistanceX", -1, 1, 24, 2, Q("2.409031 mm")))
sketch3.addConstraint(Sketcher.Constraint("DistanceX", -1, 1, 29, 2, Q("3.60538 mm")))
sketch3.addConstraint(Sketcher.Constraint("DistanceY", 31, 2, -1, 1, Q("4.006731 mm")))
sketch3.addConstraint(Sketcher.Constraint("DistanceY", 33, 2, -1, 1, Q("2.794481 mm")))
sketch3.addConstraint(Sketcher.Constraint("DistanceX", 4, 2, 6, 2, Q("1.750321 mm")))
pocket2 = doc.addObject("PartDesign::Pocket", "Pocket001")
body.addObject(pocket2)
pocket2.Profile = sketch3
pocket2.setExpression("Length", "Params.pocket2_length")

doc.recompute()
